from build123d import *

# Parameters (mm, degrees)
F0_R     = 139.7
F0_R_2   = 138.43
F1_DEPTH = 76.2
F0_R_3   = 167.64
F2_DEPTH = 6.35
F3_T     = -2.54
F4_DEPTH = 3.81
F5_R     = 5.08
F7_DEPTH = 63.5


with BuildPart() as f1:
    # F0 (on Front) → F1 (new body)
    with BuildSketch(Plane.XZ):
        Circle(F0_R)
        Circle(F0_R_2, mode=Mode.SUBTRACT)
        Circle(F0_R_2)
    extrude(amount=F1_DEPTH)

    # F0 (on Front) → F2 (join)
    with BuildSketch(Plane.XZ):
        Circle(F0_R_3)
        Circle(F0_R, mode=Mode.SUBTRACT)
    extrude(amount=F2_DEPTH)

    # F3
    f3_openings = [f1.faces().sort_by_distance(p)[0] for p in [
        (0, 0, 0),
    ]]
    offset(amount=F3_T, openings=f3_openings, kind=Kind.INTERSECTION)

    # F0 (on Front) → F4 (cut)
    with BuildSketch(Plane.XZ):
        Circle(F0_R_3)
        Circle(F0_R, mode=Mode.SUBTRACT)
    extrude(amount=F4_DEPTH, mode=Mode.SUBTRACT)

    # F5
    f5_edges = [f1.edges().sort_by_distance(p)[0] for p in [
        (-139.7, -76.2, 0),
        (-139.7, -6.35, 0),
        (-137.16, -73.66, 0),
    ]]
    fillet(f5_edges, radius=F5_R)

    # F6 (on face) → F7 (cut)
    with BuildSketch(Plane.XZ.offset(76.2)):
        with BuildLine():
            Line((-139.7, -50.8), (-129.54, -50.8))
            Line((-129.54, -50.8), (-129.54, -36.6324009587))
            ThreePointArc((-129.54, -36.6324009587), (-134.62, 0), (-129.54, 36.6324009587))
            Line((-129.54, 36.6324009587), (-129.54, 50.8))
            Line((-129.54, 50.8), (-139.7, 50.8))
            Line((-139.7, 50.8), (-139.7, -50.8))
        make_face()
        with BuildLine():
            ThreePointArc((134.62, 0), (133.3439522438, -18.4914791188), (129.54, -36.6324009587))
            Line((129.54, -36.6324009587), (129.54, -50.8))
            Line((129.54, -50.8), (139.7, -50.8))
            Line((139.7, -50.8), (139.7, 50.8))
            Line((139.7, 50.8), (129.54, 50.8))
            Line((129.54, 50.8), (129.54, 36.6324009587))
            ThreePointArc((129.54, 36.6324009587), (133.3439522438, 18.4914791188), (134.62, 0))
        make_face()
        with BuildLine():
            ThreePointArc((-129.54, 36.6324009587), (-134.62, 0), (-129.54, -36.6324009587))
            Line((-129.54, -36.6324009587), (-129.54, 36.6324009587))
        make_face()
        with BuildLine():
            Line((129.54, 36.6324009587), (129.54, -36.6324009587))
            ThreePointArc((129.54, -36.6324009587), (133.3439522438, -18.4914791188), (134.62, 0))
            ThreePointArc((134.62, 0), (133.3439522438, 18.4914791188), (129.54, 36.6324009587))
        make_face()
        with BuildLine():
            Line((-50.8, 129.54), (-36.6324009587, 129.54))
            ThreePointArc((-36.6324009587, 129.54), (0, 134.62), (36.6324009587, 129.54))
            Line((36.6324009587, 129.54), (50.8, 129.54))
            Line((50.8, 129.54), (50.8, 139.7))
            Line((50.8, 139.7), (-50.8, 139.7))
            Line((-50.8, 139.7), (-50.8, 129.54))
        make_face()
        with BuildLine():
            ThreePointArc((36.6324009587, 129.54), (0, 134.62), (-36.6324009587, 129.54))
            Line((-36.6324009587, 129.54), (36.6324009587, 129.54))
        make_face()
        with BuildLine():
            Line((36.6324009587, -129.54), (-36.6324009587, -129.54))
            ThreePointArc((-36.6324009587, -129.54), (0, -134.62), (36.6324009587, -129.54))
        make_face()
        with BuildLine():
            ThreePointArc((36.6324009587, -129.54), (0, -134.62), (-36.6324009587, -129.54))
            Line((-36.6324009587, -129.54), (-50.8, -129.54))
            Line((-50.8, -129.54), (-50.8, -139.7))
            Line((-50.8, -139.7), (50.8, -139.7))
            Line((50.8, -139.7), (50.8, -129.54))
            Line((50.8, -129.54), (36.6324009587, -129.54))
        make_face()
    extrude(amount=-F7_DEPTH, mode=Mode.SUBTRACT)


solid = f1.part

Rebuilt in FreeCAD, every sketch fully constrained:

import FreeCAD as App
import Part
import Sketcher
from FreeCAD import Vector
Q = App.Units.Quantity


def edges_at(feature, points):
    """Names of the edges that pass closest to the given points."""
    edges = feature.Shape.Edges
    near = lambda p: min(range(len(edges)), key=lambda i: edges[i].distToShape(Part.Vertex(*p))[0])
    return sorted({f"Edge{near(p) + 1}" for p in points})


def faces_at(feature, points):
    """Names of the faces that lie closest to the given points."""
    faces = feature.Shape.Faces
    near = lambda p: min(range(len(faces)), key=lambda i: faces[i].distToShape(Part.Vertex(*p))[0])
    return sorted({f"Face{near(p) + 1}" for p in points})

doc = App.newDocument("Part")
body = doc.addObject("PartDesign::Body", "Body")

sketch1 = doc.addObject("Sketcher::SketchObject", "Sketch")
body.addObject(sketch1)
sketch1.AttachmentSupport = (doc.XZ_Plane, [""])
sketch1.MapMode = "FlatFace"
sketch1.addGeometry(Part.Circle(Vector(0, 0, 0), Vector(0, 0, 1), 140), False)
sketch1.addConstraint([
    Sketcher.Constraint("Coincident", 0, 3, -1, 1),
    Sketcher.Constraint("Diameter", 0, Q("11 in")),
])
pad1 = doc.addObject("PartDesign::Pad", "Pad")
body.addObject(pad1)
pad1.Profile = sketch1
pad1.Length = Q("3 in")

sketch2 = doc.addObject("Sketcher::SketchObject", "Sketch001")
body.addObject(sketch2)
sketch2.AttachmentSupport = (doc.XZ_Plane, [""])
sketch2.MapMode = "FlatFace"
sketch2.addGeometry([
    Part.Circle(Vector(0, 0, 0), Vector(0, 0, 1), 168),
    Part.Circle(Vector(0, 0, 0), Vector(0, 0, 1), 140),
], False)
sketch2.addConstraint([
    Sketcher.Constraint("Coincident", 0, 3, -1, 1),
    Sketcher.Constraint("Coincident", 1, 3, -1, 1),
    Sketcher.Constraint("Diameter", 1, Q("11 in")),
    Sketcher.Constraint("Diameter", 0, Q("13.2 in")),
])
pad2 = doc.addObject("PartDesign::Pad", "Pad001")
body.addObject(pad2)
pad2.Profile = sketch2
pad2.Length = Q("0.25 in")
doc.recompute()

thickness = doc.addObject("PartDesign::Thickness", "Thickness")
body.addObject(thickness)
thickness.Base = (pad2, faces_at(pad2, [(0, 0, 0)]))
thickness.Value = Q("0.1 in")
thickness.Reversed = True
thickness.Join = "Intersection"

sketch3 = doc.addObject("Sketcher::SketchObject", "Sketch002")
body.addObject(sketch3)
sketch3.AttachmentSupport = (doc.XZ_Plane, [""])
sketch3.MapMode = "FlatFace"
sketch3.addGeometry([
    Part.Circle(Vector(0, 0, 0), Vector(0, 0, 1), 168),
    Part.Circle(Vector(0, 0, 0), Vector(0, 0, 1), 140),
], False)
sketch3.addConstraint([
    Sketcher.Constraint("Coincident", 0, 3, -1, 1),
    Sketcher.Constraint("Coincident", 1, 3, -1, 1),
    Sketcher.Constraint("Diameter", 1, Q("11 in")),
    Sketcher.Constraint("Diameter", 0, Q("13.2 in")),
])
pocket1 = doc.addObject("PartDesign::Pocket", "Pocket")
body.addObject(pocket1)
pocket1.Profile = sketch3
pocket1.Length = Q("0.15 in")
pocket1.Reversed = True
doc.recompute()

fillet = doc.addObject("PartDesign::Fillet", "Fillet")
body.addObject(fillet)
fillet.Base = (pocket1, edges_at(pocket1, [(-139.7, -76.2, 0), (-139.7, -6.35, 0), (-137.16, -73.66, 0)]))
fillet.Radius = Q("0.2 in")

sketch4 = doc.addObject("Sketcher::SketchObject", "Sketch003")
body.addObject(sketch4)
sketch4.AttachmentSupport = (doc.XZ_Plane, [""])
sketch4.MapMode = "FlatFace"
sketch4.AttachmentOffset = App.Placement(Vector(0, 0, 3 * 25.4), App.Rotation())
sketch4.addGeometry([
    Part.LineSegment(Vector(-140, -51, 0), Vector(-130, -51, 0)),
    Part.LineSegment(Vector(-130, -51, 0), Vector(-130, 51, 0)),
    Part.LineSegment(Vector(-130, 51, 0), Vector(-140, 51, 0)),
    Part.LineSegment(Vector(-140, 51, 0), Vector(-140, -51, 0)),
    Part.LineSegment(Vector(130, -51, 0), Vector(140, -51, 0)),
    Part.LineSegment(Vector(140, -51, 0), Vector(140, 51, 0)),
    Part.LineSegment(Vector(140, 51, 0), Vector(130, 51, 0)),
    Part.LineSegment(Vector(130, 51, 0), Vector(130, -51, 0)),
    Part.LineSegment(Vector(-51, 130, 0), Vector(51, 130, 0)),
    Part.LineSegment(Vector(51, 130, 0), Vector(51, 140, 0)),
    Part.LineSegment(Vector(51, 140, 0), Vector(-51, 140, 0)),
    Part.LineSegment(Vector(-51, 140, 0), Vector(-51, 130, 0)),
    Part.LineSegment(Vector(-51, -130, 0), Vector(-51, -140, 0)),
    Part.LineSegment(Vector(-51, -140, 0), Vector(51, -140, 0)),
    Part.LineSegment(Vector(51, -140, 0), Vector(51, -130, 0)),
    Part.LineSegment(Vector(51, -130, 0), Vector(-51, -130, 0)),
], False)
sketch4.addConstraint([
    Sketcher.Constraint("Coincident", 0, 2, 1, 1),
    Sketcher.Constraint("Coincident", 1, 2, 2, 1),
    Sketcher.Constraint("Coincident", 2, 2, 3, 1),
    Sketcher.Constraint("Coincident", 3, 2, 0, 1),
    Sketcher.Constraint("Coincident", 4, 2, 5, 1),
    Sketcher.Constraint("Coincident", 5, 2, 6, 1),
    Sketcher.Constraint("Coincident", 6, 2, 7, 1),
    Sketcher.Constraint("Coincident", 7, 2, 4, 1),
    Sketcher.Constraint("Coincident", 8, 2, 9, 1),
    Sketcher.Constraint("Coincident", 9, 2, 10, 1),
    Sketcher.Constraint("Coincident", 10, 2, 11, 1),
    Sketcher.Constraint("Coincident", 11, 2, 8, 1),
    Sketcher.Constraint("Coincident", 12, 2, 13, 1),
    Sketcher.Constraint("Coincident", 13, 2, 14, 1),
    Sketcher.Constraint("Coincident", 14, 2, 15, 1),
    Sketcher.Constraint("Coincident", 15, 2, 12, 1),
    Sketcher.Constraint("Horizontal", 0),
    Sketcher.Constraint("Vertical", 1),
    Sketcher.Constraint("Horizontal", 2),
    Sketcher.Constraint("Vertical", 3),
    Sketcher.Constraint("Horizontal", 4),
    Sketcher.Constraint("Vertical", 5),
    Sketcher.Constraint("Horizontal", 6),
    Sketcher.Constraint("Vertical", 7),
    Sketcher.Constraint("Horizontal", 8),
    Sketcher.Constraint("Vertical", 9),
    Sketcher.Constraint("Horizontal", 10),
    Sketcher.Constraint("Vertical", 11),
    Sketcher.Constraint("Vertical", 12),
    Sketcher.Constraint("Horizontal", 13),
    Sketcher.Constraint("Vertical", 14),
    Sketcher.Constraint("Horizontal", 15),
    Sketcher.Constraint("Symmetric", 2, 2, 4, 2, -1, 1),
    Sketcher.Constraint("Symmetric", 0, 2, 6, 2, -1, 1),
    Sketcher.Constraint("Symmetric", 9, 2, 12, 2, -1, 1),
    Sketcher.Constraint("Symmetric", 11, 2, 14, 2, -1, 1),
    Sketcher.Constraint("Horizontal", 3, 2, 4, 2),
    Sketcher.Constraint("Vertical", 11, 2, 12, 2),
    Sketcher.Constraint("Equal", 15, 1),
    Sketcher.Constraint("Equal", 6, 9),
    Sketcher.Constraint("DistanceX", 8, 1, 8, 2, Q("4 in")),
    Sketcher.Constraint("DistanceX", 0, 1, 0, 2, Q("0.4 in")),
    Sketcher.Constraint("DistanceX", 3, 2, 4, 2, Q("11 in")),
    Sketcher.Constraint("DistanceY", -1, 1, 8, 2, Q("5.1 in")),
])
pocket2 = doc.addObject("PartDesign::Pocket", "Pocket001")
body.addObject(pocket2)
pocket2.Profile = sketch4
pocket2.Length = Q("2.5 in")

doc.recompute()
